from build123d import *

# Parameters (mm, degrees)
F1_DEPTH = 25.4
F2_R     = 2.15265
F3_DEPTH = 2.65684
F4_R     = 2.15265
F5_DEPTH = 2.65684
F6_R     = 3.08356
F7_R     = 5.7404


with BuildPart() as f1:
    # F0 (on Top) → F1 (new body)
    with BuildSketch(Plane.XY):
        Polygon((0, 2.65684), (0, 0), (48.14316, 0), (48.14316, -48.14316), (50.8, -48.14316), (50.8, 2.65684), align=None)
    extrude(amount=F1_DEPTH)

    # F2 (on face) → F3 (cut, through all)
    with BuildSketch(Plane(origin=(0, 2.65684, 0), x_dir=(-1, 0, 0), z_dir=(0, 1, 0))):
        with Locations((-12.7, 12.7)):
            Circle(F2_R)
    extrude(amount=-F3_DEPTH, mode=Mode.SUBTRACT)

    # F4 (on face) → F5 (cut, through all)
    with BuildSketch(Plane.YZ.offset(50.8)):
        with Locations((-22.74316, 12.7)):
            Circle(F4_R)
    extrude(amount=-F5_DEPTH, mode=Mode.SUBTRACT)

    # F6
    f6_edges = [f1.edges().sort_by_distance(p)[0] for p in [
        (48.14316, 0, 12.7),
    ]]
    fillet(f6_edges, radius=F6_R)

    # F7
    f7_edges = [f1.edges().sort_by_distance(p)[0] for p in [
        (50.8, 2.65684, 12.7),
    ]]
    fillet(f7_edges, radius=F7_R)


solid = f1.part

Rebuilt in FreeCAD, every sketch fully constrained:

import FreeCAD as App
import Part
import Sketcher

V = App.Vector
Q = App.Units.Quantity


def edges_at(feature, points):
    """Names of the edges that pass closest to the given points."""
    edges = feature.Shape.Edges
    near = lambda p: min(range(len(edges)), key=lambda i: edges[i].distToShape(Part.Vertex(*p))[0])
    return sorted({f"Edge{near(p) + 1}" for p in points})


def add_polygon(sketch, points):
    """Adds a closed chain of lines whose ends are joined by coincident constraints."""
    first, n = sketch.GeometryCount, len(points)
    for a, b in zip(points, points[1:] + points[:1]):
        sketch.addGeometry(Part.LineSegment(App.Vector(*a, 0), App.Vector(*b, 0)), False)
    for i in range(n):
        sketch.addConstraint(Sketcher.Constraint("Coincident", first + i, 2, first + (i + 1) % n, 1))

doc = App.newDocument("Part")
params = doc.addObject("Spreadsheet::Sheet", "Params")
for row, (alias, value) in enumerate([
    ("sketch1_width", "2 in"),
    ("pad1_length", "1 in"),
    ("fillet_radius", "0.1214 in"),
    ("fillet2_radius", "0.226 in"),
], start=1):
    params.set(f"A{row}", alias)
    params.set(f"B{row}", "=" + value)
    params.setAlias(f"B{row}", alias)

body = doc.addObject("PartDesign::Body", "Body")

sketch1 = body.newObject("Sketcher::SketchObject", "Sketch")
sketch1.AttachmentSupport = (doc.getObject("XY_Plane"), [""])
sketch1.MapMode = "FlatFace"
add_polygon(sketch1, [(0, 2.65684), (0, 0), (48.14316, 0), (48.14316, -48.14316), (50.8, -48.14316), (50.8, 2.65684)])
sketch1.addConstraint([
    Sketcher.Constraint("Vertical", 0),
    Sketcher.Constraint("Horizontal", 1),
    Sketcher.Constraint("Vertical", 2),
    Sketcher.Constraint("Horizontal", 3),
    Sketcher.Constraint("Vertical", 4),
    Sketcher.Constraint("Horizontal", 5),
    Sketcher.Constraint("Coincident", 0, 2, -1, 1),
    Sketcher.Constraint("Equal", 3, 0),
    Sketcher.Constraint("Equal", 1, 2),
    Sketcher.Constraint("DistanceX", 5, 2, 5, 1, Q("2 in")),
    Sketcher.Constraint("DistanceX", 1, 1, 1, 2, Q("1.8954 in")),
])
sketch1.setExpression("Constraints[15]", "Params.sketch1_width")
pad1 = body.newObject("PartDesign::Pad", "Pad")
pad1.Profile = sketch1
pad1.setExpression("Length", "Params.pad1_length")

sketch2 = body.newObject("Sketcher::SketchObject", "Sketch001")
sketch2.AttachmentSupport = (doc.getObject("XZ_Plane"), [""])
sketch2.MapMode = "FlatFace"
sketch2.AttachmentOffset = App.Placement(V(0, 0, -0.1046 * 25.4), App.Rotation())
sketch2.addGeometry(Part.Circle(V(12.7, 12.7, 0), V(0, 0, 1), 2.15265), False)
sketch2.addConstraint([
    Sketcher.Constraint("Diameter", 0, Q("0.1695 in")),
    Sketcher.Constraint("DistanceX", -1, 1, 0, 3, Q("0.5 in")),
    Sketcher.Constraint("DistanceY", -1, 1, 0, 3, Q("0.5 in")),
])
pocket1 = body.newObject("PartDesign::Pocket", "Pocket")
pocket1.Profile = sketch2
pocket1.Type = "ThroughAll"
pocket1.Reversed = True

sketch3 = body.newObject("Sketcher::SketchObject", "Sketch002")
sketch3.AttachmentSupport = (doc.getObject("YZ_Plane"), [""])
sketch3.MapMode = "FlatFace"
sketch3.AttachmentOffset = App.Placement(V(0, 0, 2 * 25.4), App.Rotation())
sketch3.addGeometry(Part.Circle(V(-22.74316, 12.7, 0), V(0, 0, 1), 2.15265), False)
sketch3.addConstraint([
    Sketcher.Constraint("Diameter", 0, Q("0.1695 in")),
    Sketcher.Constraint("DistanceY", -1, 1, 0, 3, Q("0.5 in")),
    Sketcher.Constraint("DistanceX", 0, 3, -1, 1, Q("0.8954 in")),
])
pocket2 = body.newObject("PartDesign::Pocket", "Pocket001")
pocket2.Profile = sketch3
pocket2.Type = "ThroughAll"
doc.recompute()

fillet = body.newObject("PartDesign::Fillet", "Fillet")
fillet.Base = (pocket2, edges_at(pocket2, [(48.143, 0, 12.7)]))
fillet.setExpression("Radius", "Params.fillet_radius")
doc.recompute()

fillet2 = body.newObject("PartDesign::Fillet", "Fillet001")
fillet2.Base = (fillet, edges_at(fillet, [(50.8, 2.657, 12.7)]))
fillet2.setExpression("Radius", "Params.fillet2_radius")

doc.recompute()
